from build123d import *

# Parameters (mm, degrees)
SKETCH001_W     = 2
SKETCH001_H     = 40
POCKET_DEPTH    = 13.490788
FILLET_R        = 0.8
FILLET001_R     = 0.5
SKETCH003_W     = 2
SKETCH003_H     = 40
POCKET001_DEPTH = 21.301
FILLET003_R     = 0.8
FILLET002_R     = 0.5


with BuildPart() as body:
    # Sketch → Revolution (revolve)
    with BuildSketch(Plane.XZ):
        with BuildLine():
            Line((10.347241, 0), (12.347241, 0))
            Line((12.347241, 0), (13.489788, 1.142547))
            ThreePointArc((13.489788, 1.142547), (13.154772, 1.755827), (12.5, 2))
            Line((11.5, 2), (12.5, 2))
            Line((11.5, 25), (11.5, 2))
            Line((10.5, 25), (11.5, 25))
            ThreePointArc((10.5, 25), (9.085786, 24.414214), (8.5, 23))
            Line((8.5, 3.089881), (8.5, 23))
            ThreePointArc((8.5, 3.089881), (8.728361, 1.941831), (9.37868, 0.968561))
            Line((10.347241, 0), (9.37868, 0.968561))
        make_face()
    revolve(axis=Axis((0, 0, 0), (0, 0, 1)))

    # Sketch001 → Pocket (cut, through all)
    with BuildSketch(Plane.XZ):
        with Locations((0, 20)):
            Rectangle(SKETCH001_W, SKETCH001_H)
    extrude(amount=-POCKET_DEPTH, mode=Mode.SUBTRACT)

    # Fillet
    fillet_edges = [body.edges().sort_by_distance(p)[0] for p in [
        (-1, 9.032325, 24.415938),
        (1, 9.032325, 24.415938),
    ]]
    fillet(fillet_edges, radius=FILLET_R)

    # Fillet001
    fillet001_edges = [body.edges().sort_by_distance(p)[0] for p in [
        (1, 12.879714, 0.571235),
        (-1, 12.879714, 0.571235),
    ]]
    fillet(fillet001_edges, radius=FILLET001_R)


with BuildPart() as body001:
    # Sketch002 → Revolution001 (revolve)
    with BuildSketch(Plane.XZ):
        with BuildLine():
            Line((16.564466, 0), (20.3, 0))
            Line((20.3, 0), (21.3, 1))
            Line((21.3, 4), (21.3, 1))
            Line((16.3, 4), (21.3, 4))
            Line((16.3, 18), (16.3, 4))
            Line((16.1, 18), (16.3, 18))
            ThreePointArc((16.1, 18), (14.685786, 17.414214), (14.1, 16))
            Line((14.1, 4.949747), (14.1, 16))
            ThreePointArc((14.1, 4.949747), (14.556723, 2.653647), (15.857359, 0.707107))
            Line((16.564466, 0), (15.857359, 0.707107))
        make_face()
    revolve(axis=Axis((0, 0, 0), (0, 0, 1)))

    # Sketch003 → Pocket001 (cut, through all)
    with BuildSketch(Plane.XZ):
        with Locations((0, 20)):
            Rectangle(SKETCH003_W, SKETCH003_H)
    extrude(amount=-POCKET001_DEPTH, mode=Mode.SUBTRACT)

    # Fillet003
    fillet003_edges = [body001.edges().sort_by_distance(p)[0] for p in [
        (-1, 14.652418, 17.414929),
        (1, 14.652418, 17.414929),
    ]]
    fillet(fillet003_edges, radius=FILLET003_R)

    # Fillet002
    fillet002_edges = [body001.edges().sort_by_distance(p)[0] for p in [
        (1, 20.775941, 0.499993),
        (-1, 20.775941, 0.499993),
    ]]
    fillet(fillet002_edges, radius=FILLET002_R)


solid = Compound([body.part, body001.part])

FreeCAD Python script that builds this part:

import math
import FreeCAD as App
import Part
import Sketcher
Q = App.Units.Quantity


def edges_at(feature, points):
    """Names of the edges that pass closest to the given points."""
    edges = feature.Shape.Edges
    near = lambda p: min(range(len(edges)), key=lambda i: edges[i].distToShape(Part.Vertex(*p))[0])
    return sorted({f"Edge{near(p) + 1}" for p in points})


def add_polygon(sketch, points):
    """Adds a closed chain of lines whose ends are joined by coincident constraints."""
    first, n = sketch.GeometryCount, len(points)
    for a, b in zip(points, points[1:] + points[:1]):
        sketch.addGeometry(Part.LineSegment(App.Vector(*a, 0), App.Vector(*b, 0)), False)
    for i in range(n):
        sketch.addConstraint(Sketcher.Constraint("Coincident", first + i, 2, first + (i + 1) % n, 1))

doc = App.newDocument("Part")
body = doc.addObject("PartDesign::Body", "Body")

# Sketch on XZ plane
sketch1 = body.newObject("Sketcher::SketchObject", "Sketch")
sketch1.AttachmentSupport = (doc.getObject("XZ_Plane"), [""])
sketch1.MapMode = "FlatFace"
sketch1.addGeometry(Part.LineSegment(App.Vector(10.347241, 0, 0), App.Vector(12.347241, 0, 0)), False)
sketch1.addGeometry(Part.LineSegment(App.Vector(12.347241, 0, 0), App.Vector(13.489788, 1.142547, 0)), False)
sketch1.addGeometry(Part.ArcOfCircle(Part.Circle(App.Vector(12.500001, 1.000001, 0), App.Vector(0, 0, 1), 0.999999), math.radians(8.19519), math.radians(90.000065)), False)
sketch1.addGeometry(Part.LineSegment(App.Vector(12.5, 2, 0), App.Vector(11.5, 2, 0)), False)
sketch1.addGeometry(Part.LineSegment(App.Vector(11.5, 2, 0), App.Vector(11.5, 25, 0)), False)
sketch1.addGeometry(Part.LineSegment(App.Vector(11.5, 25, 0), App.Vector(10.5, 25, 0)), False)
sketch1.addGeometry(Part.ArcOfCircle(Part.Circle(App.Vector(10.499999, 23.000001, 0), App.Vector(0, 0, 1), 1.999999), math.radians(89.999957), math.radians(180.000043)), False)
sketch1.addGeometry(Part.LineSegment(App.Vector(8.5, 23, 0), App.Vector(8.5, 3.089881, 0)), False)
sketch1.addGeometry(Part.ArcOfCircle(Part.Circle(App.Vector(11.499994, 3.089879, 0), App.Vector(0, 0, 1), 2.999994), math.radians(179.999963), math.radians(225.000059)), False)
sketch1.addGeometry(Part.LineSegment(App.Vector(9.37868, 0.968561, 0), App.Vector(10.347241, 0, 0)), False)
sketch1.addConstraint(Sketcher.Constraint("Coincident", 0, 2, 1, 1))
sketch1.addConstraint(Sketcher.Constraint("Coincident", 1, 2, 2, 1))
sketch1.addConstraint(Sketcher.Constraint("Tangent", 2, 2, 3, 1))
sketch1.addConstraint(Sketcher.Constraint("Coincident", 3, 2, 4, 1))
sketch1.addConstraint(Sketcher.Constraint("Coincident", 4, 2, 5, 1))
sketch1.addConstraint(Sketcher.Constraint("Tangent", 5, 2, 6, 1))
sketch1.addConstraint(Sketcher.Constraint("Tangent", 6, 2, 7, 1))
sketch1.addConstraint(Sketcher.Constraint("Tangent", 7, 2, 8, 1))
sketch1.addConstraint(Sketcher.Constraint("Tangent", 8, 2, 9, 1))
sketch1.addConstraint(Sketcher.Constraint("Coincident", 9, 2, 0, 1))
sketch1.addConstraint(Sketcher.Constraint("Horizontal", 0))
sketch1.addConstraint(Sketcher.Constraint("Horizontal", 3))
sketch1.addConstraint(Sketcher.Constraint("Vertical", 4))
sketch1.addConstraint(Sketcher.Constraint("Horizontal", 5))
sketch1.addConstraint(Sketcher.Constraint("Vertical", 7))
sketch1.addConstraint(Sketcher.Constraint("PointOnObject", 0, 2, -1))
sketch1.addConstraint(Sketcher.Constraint("Perpendicular", 1, 9))
sketch1.addConstraint(Sketcher.Constraint("Equal", 3, 5))
sketch1.addConstraint(Sketcher.Constraint("Radius", 2, 0.999999))
sketch1.addConstraint(Sketcher.Constraint("Radius", 6, 1.999999))
sketch1.addConstraint(Sketcher.Constraint("DistanceX", 0, 1, 0, 2, 2.0))
sketch1.addConstraint(Sketcher.Constraint("DistanceX", 3, 2, 3, 1, 1.0))
sketch1.addConstraint(Sketcher.Constraint("DistanceY", 4, 1, 4, 2, 23.0))
sketch1.addConstraint(Sketcher.Constraint("Angle", 1, Q("45 deg")))
sketch1.addConstraint(Sketcher.Constraint("DistanceY", -1, 1, 2, 3, 1.000001))
sketch1.addConstraint(Sketcher.Constraint("DistanceX", -1, 1, 2, 3, 12.500001))
sketch1.addConstraint(Sketcher.Constraint("Radius", 8, 2.999994))
sketch1.addConstraint(Sketcher.Constraint("DistanceY", 7, 2, 7, 1, 19.910119))
revolution = body.newObject("PartDesign::Revolution", "Revolution")
revolution.Profile = sketch1
revolution.ReferenceAxis = (sketch1, ["V_Axis"])
revolution.Angle = 360

# Sketch on XZ plane
sketch2 = body.newObject("Sketcher::SketchObject", "Sketch001")
sketch2.AttachmentSupport = (doc.getObject("XZ_Plane"), [""])
sketch2.MapMode = "FlatFace"
add_polygon(sketch2, [(-1, 40), (-1, 0), (1, 0), (1, 40)])  # lines 0-3
sketch2.addConstraint(Sketcher.Constraint("Vertical", 0))
sketch2.addConstraint(Sketcher.Constraint("Horizontal", 1))
sketch2.addConstraint(Sketcher.Constraint("Vertical", 2))
sketch2.addConstraint(Sketcher.Constraint("Horizontal", 3))
sketch2.addConstraint(Sketcher.Constraint("Symmetric", 0, 2, 1, 2, -1, 1))
sketch2.addConstraint(Sketcher.Constraint("DistanceX", 1, 1, 1, 2, 2.0))
sketch2.addConstraint(Sketcher.Constraint("DistanceY", 0, 2, 0, 1, 40.0))
pocket1 = body.newObject("PartDesign::Pocket", "Pocket")
pocket1.Profile = sketch2
pocket1.Type = "ThroughAll"
doc.recompute()

fillet = body.newObject("PartDesign::Fillet", "Fillet")
fillet.Base = (pocket1, edges_at(pocket1, [(-1, 9.032, 24.416), (1, 9.032, 24.416)]))
fillet.Radius = 0.8
doc.recompute()

fillet2 = body.newObject("PartDesign::Fillet", "Fillet001")
fillet2.Base = (fillet, edges_at(fillet, [(1, 12.88, 0.571), (-1, 12.88, 0.571)]))
fillet2.Radius = 0.5
body2 = doc.addObject("PartDesign::Body", "Body001")

# Sketch on XZ plane
sketch3 = body2.newObject("Sketcher::SketchObject", "Sketch002")
sketch3.AttachmentSupport = (doc.getObject("XZ_Plane001"), [""])
sketch3.MapMode = "FlatFace"
sketch3.addGeometry(Part.LineSegment(App.Vector(16.564466, 0, 0), App.Vector(20.3, 0, 0)), False)
sketch3.addGeometry(Part.LineSegment(App.Vector(20.3, 0, 0), App.Vector(21.3, 1, 0)), False)
sketch3.addGeometry(Part.LineSegment(App.Vector(21.3, 1, 0), App.Vector(21.3, 4, 0)), False)
sketch3.addGeometry(Part.LineSegment(App.Vector(21.3, 4, 0), App.Vector(16.3, 4, 0)), False)
sketch3.addGeometry(Part.LineSegment(App.Vector(16.3, 4, 0), App.Vector(16.3, 18, 0)), False)
sketch3.addGeometry(Part.LineSegment(App.Vector(16.3, 18, 0), App.Vector(16.1, 18, 0)), False)
sketch3.addGeometry(Part.ArcOfCircle(Part.Circle(App.Vector(16.099999, 16.000001, 0), App.Vector(0, 0, 1), 1.999999), math.radians(89.999957), math.radians(180.000043)), False)
sketch3.addGeometry(Part.LineSegment(App.Vector(14.1, 16, 0), App.Vector(14.1, 4.949747, 0)), False)
sketch3.addGeometry(Part.ArcOfCircle(Part.Circle(App.Vector(20.100003, 4.949749, 0), App.Vector(0, 0, 1), 6.000003), math.radians(-179.999984), math.radians(-135.000017)), False)
sketch3.addGeometry(Part.LineSegment(App.Vector(15.857359, 0.707107, 0), App.Vector(16.564466, 0, 0)), False)
sketch3.addConstraint(Sketcher.Constraint("Coincident", 0, 2, 1, 1))
sketch3.addConstraint(Sketcher.Constraint("Coincident", 1, 2, 2, 1))
sketch3.addConstraint(Sketcher.Constraint("Coincident", 2, 2, 3, 1))
sketch3.addConstraint(Sketcher.Constraint("Coincident", 3, 2, 4, 1))
sketch3.addConstraint(Sketcher.Constraint("Coincident", 4, 2, 5, 1))
sketch3.addConstraint(Sketcher.Constraint("Tangent", 5, 2, 6, 1))
sketch3.addConstraint(Sketcher.Constraint("Tangent", 6, 2, 7, 1))
sketch3.addConstraint(Sketcher.Constraint("Tangent", 7, 2, 8, 1))
sketch3.addConstraint(Sketcher.Constraint("Tangent", 8, 2, 9, 1))
sketch3.addConstraint(Sketcher.Constraint("Coincident", 9, 2, 0, 1))
sketch3.addConstraint(Sketcher.Constraint("Horizontal", 0))
sketch3.addConstraint(Sketcher.Constraint("Vertical", 2))
sketch3.addConstraint(Sketcher.Constraint("Horizontal", 3))
sketch3.addConstraint(Sketcher.Constraint("Vertical", 4))
sketch3.addConstraint(Sketcher.Constraint("Horizontal", 5))
sketch3.addConstraint(Sketcher.Constraint("Vertical", 7))
sketch3.addConstraint(Sketcher.Constraint("PointOnObject", 0, 2, -1))
sketch3.addConstraint(Sketcher.Constraint("Perpendicular", 1, 9))
sketch3.addConstraint(Sketcher.Constraint("Radius", 6, 1.999999))
sketch3.addConstraint(Sketcher.Constraint("DistanceX", 3, 2, 3, 1, 5.0))
sketch3.addConstraint(Sketcher.Constraint("DistanceY", 2, 1, 2, 2, 3.0))
sketch3.addConstraint(Sketcher.Constraint("DistanceY", 4, 1, 4, 2, 14.0))
sketch3.addConstraint(Sketcher.Constraint("Angle", 1, Q("45 deg")))
sketch3.addConstraint(Sketcher.Constraint("Distance", 9, 1.0))
sketch3.addConstraint(Sketcher.Constraint("DistanceX", 5, 2, 5, 1, 0.2))
sketch3.addConstraint(Sketcher.Constraint("DistanceY", -1, 1, 6, 3, 16.000001))
sketch3.addConstraint(Sketcher.Constraint("DistanceX", -1, 1, 6, 3, 16.099999))
sketch3.addConstraint(Sketcher.Constraint("Radius", 8, 6.000003))
revolution2 = body2.newObject("PartDesign::Revolution", "Revolution001")
revolution2.Profile = sketch3
revolution2.ReferenceAxis = (sketch3, ["V_Axis"])
revolution2.Angle = 360

# Sketch on XZ plane
sketch4 = body2.newObject("Sketcher::SketchObject", "Sketch003")
sketch4.AttachmentSupport = (doc.getObject("XZ_Plane001"), [""])
sketch4.MapMode = "FlatFace"
add_polygon(sketch4, [(-1, 40), (-1, 0), (1, 0), (1, 40)])  # lines 0-3
sketch4.addConstraint(Sketcher.Constraint("Vertical", 0))
sketch4.addConstraint(Sketcher.Constraint("Horizontal", 1))
sketch4.addConstraint(Sketcher.Constraint("Vertical", 2))
sketch4.addConstraint(Sketcher.Constraint("Horizontal", 3))
sketch4.addConstraint(Sketcher.Constraint("Symmetric", 0, 2, 1, 2, -1, 1))
sketch4.addConstraint(Sketcher.Constraint("DistanceX", 1, 1, 1, 2, 2.0))
sketch4.addConstraint(Sketcher.Constraint("DistanceY", 0, 2, 0, 1, 40.0))
pocket2 = body2.newObject("PartDesign::Pocket", "Pocket001")
pocket2.Profile = sketch4
pocket2.Type = "ThroughAll"
doc.recompute()

fillet3 = body2.newObject("PartDesign::Fillet", "Fillet002")
fillet3.Base = (pocket2, edges_at(pocket2, [(-1, 14.652, 17.415), (1, 14.652, 17.415)]))
fillet3.Radius = 0.8
doc.recompute()

fillet4 = body2.newObject("PartDesign::Fillet", "Fillet003")
fillet4.Base = (fillet3, edges_at(fillet3, [(1, 20.776, 0.5), (-1, 20.776, 0.5)]))
fillet4.Radius = 0.5

doc.recompute()
